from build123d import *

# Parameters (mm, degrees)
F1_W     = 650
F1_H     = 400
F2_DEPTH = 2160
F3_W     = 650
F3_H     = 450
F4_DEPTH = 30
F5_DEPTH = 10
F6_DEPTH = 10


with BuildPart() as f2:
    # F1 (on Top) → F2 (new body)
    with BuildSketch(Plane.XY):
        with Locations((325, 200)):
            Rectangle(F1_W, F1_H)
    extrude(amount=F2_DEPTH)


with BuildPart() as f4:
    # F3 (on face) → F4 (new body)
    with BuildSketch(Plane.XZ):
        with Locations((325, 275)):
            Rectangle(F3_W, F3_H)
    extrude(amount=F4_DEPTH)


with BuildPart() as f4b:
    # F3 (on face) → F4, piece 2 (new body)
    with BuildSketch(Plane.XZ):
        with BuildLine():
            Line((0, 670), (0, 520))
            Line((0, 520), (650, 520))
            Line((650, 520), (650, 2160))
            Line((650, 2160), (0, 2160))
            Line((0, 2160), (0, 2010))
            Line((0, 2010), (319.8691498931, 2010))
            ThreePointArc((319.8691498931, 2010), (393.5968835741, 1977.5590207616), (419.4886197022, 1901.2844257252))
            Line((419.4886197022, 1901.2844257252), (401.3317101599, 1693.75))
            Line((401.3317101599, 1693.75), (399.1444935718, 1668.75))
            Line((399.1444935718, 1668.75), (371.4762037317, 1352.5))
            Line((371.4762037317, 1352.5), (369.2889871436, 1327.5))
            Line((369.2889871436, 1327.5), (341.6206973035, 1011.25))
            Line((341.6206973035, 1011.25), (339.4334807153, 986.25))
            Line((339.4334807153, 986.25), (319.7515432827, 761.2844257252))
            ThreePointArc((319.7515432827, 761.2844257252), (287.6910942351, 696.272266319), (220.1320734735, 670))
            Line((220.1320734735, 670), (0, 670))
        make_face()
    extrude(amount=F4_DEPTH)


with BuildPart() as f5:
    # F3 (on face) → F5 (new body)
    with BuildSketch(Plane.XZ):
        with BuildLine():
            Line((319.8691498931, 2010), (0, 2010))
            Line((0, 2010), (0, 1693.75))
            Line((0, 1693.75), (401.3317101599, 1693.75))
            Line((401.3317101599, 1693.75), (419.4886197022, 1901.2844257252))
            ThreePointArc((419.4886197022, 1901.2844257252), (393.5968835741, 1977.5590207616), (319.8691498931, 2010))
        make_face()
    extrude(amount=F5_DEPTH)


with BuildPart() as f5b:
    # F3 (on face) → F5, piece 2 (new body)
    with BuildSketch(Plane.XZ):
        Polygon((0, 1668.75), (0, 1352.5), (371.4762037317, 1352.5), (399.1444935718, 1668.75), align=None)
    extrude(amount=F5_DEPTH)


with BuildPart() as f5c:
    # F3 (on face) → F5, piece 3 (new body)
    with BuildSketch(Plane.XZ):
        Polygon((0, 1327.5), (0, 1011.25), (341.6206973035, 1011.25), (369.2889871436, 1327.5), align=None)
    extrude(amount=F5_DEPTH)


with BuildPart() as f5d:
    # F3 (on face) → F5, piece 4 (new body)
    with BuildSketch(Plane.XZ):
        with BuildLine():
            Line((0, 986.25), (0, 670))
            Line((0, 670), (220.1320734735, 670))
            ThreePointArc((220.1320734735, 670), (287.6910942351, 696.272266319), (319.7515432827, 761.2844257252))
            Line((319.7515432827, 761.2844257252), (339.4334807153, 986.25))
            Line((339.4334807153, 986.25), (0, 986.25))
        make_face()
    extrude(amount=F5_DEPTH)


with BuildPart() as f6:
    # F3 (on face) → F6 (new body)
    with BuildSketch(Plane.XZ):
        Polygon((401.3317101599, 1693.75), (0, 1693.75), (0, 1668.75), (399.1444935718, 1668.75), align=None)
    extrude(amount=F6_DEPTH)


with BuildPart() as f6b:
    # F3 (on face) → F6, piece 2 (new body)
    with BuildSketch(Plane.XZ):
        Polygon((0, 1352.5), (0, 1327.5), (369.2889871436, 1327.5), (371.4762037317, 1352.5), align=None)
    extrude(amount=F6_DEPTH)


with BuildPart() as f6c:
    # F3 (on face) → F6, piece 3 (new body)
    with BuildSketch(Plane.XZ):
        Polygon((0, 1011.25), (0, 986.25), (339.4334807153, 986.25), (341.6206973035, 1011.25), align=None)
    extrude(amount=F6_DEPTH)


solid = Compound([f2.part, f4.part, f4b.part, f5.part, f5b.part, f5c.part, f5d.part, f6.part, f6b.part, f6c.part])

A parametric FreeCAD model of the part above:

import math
import FreeCAD as App
import Part
import Sketcher

V = App.Vector
Q = App.Units.Quantity


def add_polygon(sketch, points):
    """Adds a closed chain of lines whose ends are joined by coincident constraints."""
    first, n = sketch.GeometryCount, len(points)
    for a, b in zip(points, points[1:] + points[:1]):
        sketch.addGeometry(Part.LineSegment(App.Vector(*a, 0), App.Vector(*b, 0)), False)
    for i in range(n):
        sketch.addConstraint(Sketcher.Constraint("Coincident", first + i, 2, first + (i + 1) % n, 1))

doc = App.newDocument("Part")
body = doc.addObject("PartDesign::Body", "Body")

# Sketch on XY plane
sketch1 = body.newObject("Sketcher::SketchObject", "Sketch")
sketch1.AttachmentSupport = (doc.getObject("XY_Plane"), [""])
sketch1.MapMode = "FlatFace"
add_polygon(sketch1, [(0, 400), (0, 0), (650, 0), (650, 400)])  # lines 0-3
sketch1.addConstraint(Sketcher.Constraint("Vertical", 0))
sketch1.addConstraint(Sketcher.Constraint("Horizontal", 1))
sketch1.addConstraint(Sketcher.Constraint("Vertical", 2))
sketch1.addConstraint(Sketcher.Constraint("Horizontal", 3))
sketch1.addConstraint(Sketcher.Constraint("Coincident", 0, 2, -1, 1))
sketch1.addConstraint(Sketcher.Constraint("DistanceX", 1, 1, 1, 2, Q("650 mm")))
sketch1.addConstraint(Sketcher.Constraint("DistanceY", 0, 2, 0, 1, Q("400 mm")))
pad1 = body.newObject("PartDesign::Pad", "Pad")
pad1.Profile = sketch1
pad1.Length = 2160
body2 = doc.addObject("PartDesign::Body", "Body001")

# Sketch on XZ plane
sketch2 = body2.newObject("Sketcher::SketchObject", "Sketch001")
sketch2.AttachmentSupport = (doc.getObject("XZ_Plane001"), [""])
sketch2.MapMode = "FlatFace"
add_polygon(sketch2, [(0, 500), (0, 50), (650, 50), (650, 500)])  # lines 0-3
sketch2.addConstraint(Sketcher.Constraint("Vertical", 0))
sketch2.addConstraint(Sketcher.Constraint("Horizontal", 1))
sketch2.addConstraint(Sketcher.Constraint("Vertical", 2))
sketch2.addConstraint(Sketcher.Constraint("Horizontal", 3))
sketch2.addConstraint(Sketcher.Constraint("PointOnObject", 0, 2, -2))
sketch2.addConstraint(Sketcher.Constraint("DistanceX", 1, 1, 1, 2, Q("650 mm")))
sketch2.addConstraint(Sketcher.Constraint("DistanceY", 0, 2, 0, 1, Q("450 mm")))
sketch2.addConstraint(Sketcher.Constraint("DistanceY", -1, 1, 0, 2, Q("50 mm")))
pad2 = body2.newObject("PartDesign::Pad", "Pad001")
pad2.Profile = sketch2
pad2.Length = 30
body3 = doc.addObject("PartDesign::Body", "Body002")

# Sketch on XZ plane
sketch3 = body3.newObject("Sketcher::SketchObject", "Sketch002")
sketch3.AttachmentSupport = (doc.getObject("XZ_Plane002"), [""])
sketch3.MapMode = "FlatFace"
sketch3.addGeometry(Part.LineSegment(V(0, 670, 0), V(0, 520, 0)), False)
sketch3.addGeometry(Part.LineSegment(V(0, 520, 0), V(650, 520, 0)), False)
sketch3.addGeometry(Part.LineSegment(V(650, 520, 0), V(650, 2160, 0)), False)
sketch3.addGeometry(Part.LineSegment(V(650, 2160, 0), V(0, 2160, 0)), False)
sketch3.addGeometry(Part.LineSegment(V(0, 2160, 0), V(0, 2010, 0)), False)
sketch3.addGeometry(Part.LineSegment(V(0, 2010, 0), V(320, 2010, 0)), False)
sketch3.addGeometry(Part.ArcOfCircle(Part.Circle(V(320, 1910, 0), V(0, 0, 1), 100), math.radians(-5), math.radians(90)), False)
sketch3.addGeometry(Part.LineSegment(V(419, 1901, 0), V(401, 1694, 0)), False)
sketch3.addGeometry(Part.LineSegment(V(401, 1694, 0), V(399, 1669, 0)), False)
sketch3.addGeometry(Part.LineSegment(V(399, 1669, 0), V(371, 1352, 0)), False)
sketch3.addGeometry(Part.LineSegment(V(371, 1352, 0), V(369, 1328, 0)), False)
sketch3.addGeometry(Part.LineSegment(V(369, 1328, 0), V(342, 1011, 0)), False)
sketch3.addGeometry(Part.LineSegment(V(342, 1011, 0), V(339, 986, 0)), False)
sketch3.addGeometry(Part.LineSegment(V(339, 986, 0), V(320, 761, 0)), False)
sketch3.addGeometry(Part.ArcOfCircle(Part.Circle(V(220, 770, 0), V(0, 0, 1), 100), math.radians(-90), math.radians(-5)), False)
sketch3.addGeometry(Part.LineSegment(V(220, 670, 0), V(0, 670, 0)), False)
sketch3.addConstraint(Sketcher.Constraint("Coincident", 0, 2, 1, 1))
sketch3.addConstraint(Sketcher.Constraint("Coincident", 1, 2, 2, 1))
sketch3.addConstraint(Sketcher.Constraint("Coincident", 2, 2, 3, 1))
sketch3.addConstraint(Sketcher.Constraint("Coincident", 3, 2, 4, 1))
sketch3.addConstraint(Sketcher.Constraint("Coincident", 4, 2, 5, 1))
sketch3.addConstraint(Sketcher.Constraint("Tangent", 5, 2, 6, 2))
sketch3.addConstraint(Sketcher.Constraint("Tangent", 6, 1, 7, 1))
sketch3.addConstraint(Sketcher.Constraint("Coincident", 7, 2, 8, 1))
sketch3.addConstraint(Sketcher.Constraint("Coincident", 8, 2, 9, 1))
sketch3.addConstraint(Sketcher.Constraint("Coincident", 9, 2, 10, 1))
sketch3.addConstraint(Sketcher.Constraint("Coincident", 10, 2, 11, 1))
sketch3.addConstraint(Sketcher.Constraint("Coincident", 11, 2, 12, 1))
sketch3.addConstraint(Sketcher.Constraint("Coincident", 12, 2, 13, 1))
sketch3.addConstraint(Sketcher.Constraint("Tangent", 13, 2, 14, 2))
sketch3.addConstraint(Sketcher.Constraint("Tangent", 14, 1, 15, 1))
sketch3.addConstraint(Sketcher.Constraint("Coincident", 15, 2, 0, 1))
sketch3.addConstraint(Sketcher.Constraint("Vertical", 0))
sketch3.addConstraint(Sketcher.Constraint("Horizontal", 1))
sketch3.addConstraint(Sketcher.Constraint("Vertical", 2))
sketch3.addConstraint(Sketcher.Constraint("Horizontal", 3))
sketch3.addConstraint(Sketcher.Constraint("Vertical", 4))
sketch3.addConstraint(Sketcher.Constraint("Horizontal", 5))
sketch3.addConstraint(Sketcher.Constraint("Horizontal", 15))
sketch3.addConstraint(Sketcher.Constraint("Equal", 6, 14))
sketch3.addConstraint(Sketcher.Constraint("PointOnObject", 0, 2, -2))
sketch3.addConstraint(Sketcher.Constraint("PointOnObject", 3, 2, -2))
sketch3.addConstraint(Sketcher.Constraint("Parallel", 7, 8))
sketch3.addConstraint(Sketcher.Constraint("Parallel", 8, 9))
sketch3.addConstraint(Sketcher.Constraint("Parallel", 9, 10))
sketch3.addConstraint(Sketcher.Constraint("Parallel", 10, 11))
sketch3.addConstraint(Sketcher.Constraint("Parallel", 11, 12))
sketch3.addConstraint(Sketcher.Constraint("Parallel", 12, 13))
sketch3.addConstraint(Sketcher.Constraint("Equal", 0, 4))
sketch3.addConstraint(Sketcher.Constraint("Equal", 8, 10))
sketch3.addConstraint(Sketcher.Constraint("Equal", 9, 11))
sketch3.addConstraint(Sketcher.Constraint("Equal", 10, 12))
sketch3.addConstraint(Sketcher.Constraint("Radius", 6, Q("100 mm")))
sketch3.addConstraint(Sketcher.Constraint("DistanceX", 1, 1, 1, 2, Q("650 mm")))
sketch3.addConstraint(Sketcher.Constraint("DistanceY", 0, 2, 0, 1, Q("150 mm")))
sketch3.addConstraint(Sketcher.Constraint("DistanceY", 2, 1, 2, 2, Q("1640 mm")))
sketch3.addConstraint(Sketcher.Constraint("Angle", 7, Q("-95 deg")))
sketch3.addConstraint(Sketcher.Constraint("DistanceY", -1, 1, 6, 3, Q("1910 mm")))
sketch3.addConstraint(Sketcher.Constraint("DistanceY", 8, 2, 7, 2, Q("25 mm")))
sketch3.addConstraint(Sketcher.Constraint("DistanceY", -1, 1, 9, 2, Q("1352.5 mm")))
sketch3.addConstraint(Sketcher.Constraint("DistanceY", -1, 1, 7, 2, Q("1693.75 mm")))
sketch3.addConstraint(Sketcher.Constraint("DistanceX", 5, 1, 5, 2, Q("319.86915 mm")))
pad3 = body3.newObject("PartDesign::Pad", "Pad002")
pad3.Profile = sketch3
pad3.Length = 30
body4 = doc.addObject("PartDesign::Body", "Body003")

# Sketch on XZ plane
sketch4 = body4.newObject("Sketcher::SketchObject", "Sketch003")
sketch4.AttachmentSupport = (doc.getObject("XZ_Plane003"), [""])
sketch4.MapMode = "FlatFace"
sketch4.addGeometry(Part.LineSegment(V(320, 2010, 0), V(0, 2010, 0)), False)
sketch4.addGeometry(Part.LineSegment(V(0, 2010, 0), V(0, 1694, 0)), False)
sketch4.addGeometry(Part.LineSegment(V(0, 1694, 0), V(401, 1694, 0)), False)
sketch4.addGeometry(Part.LineSegment(V(401, 1694, 0), V(419, 1901, 0)), False)
sketch4.addGeometry(Part.ArcOfCircle(Part.Circle(V(320, 1910, 0), V(0, 0, 1), 100), math.radians(-5), math.radians(90)), False)
sketch4.addConstraint(Sketcher.Constraint("Coincident", 0, 2, 1, 1))
sketch4.addConstraint(Sketcher.Constraint("Coincident", 1, 2, 2, 1))
sketch4.addConstraint(Sketcher.Constraint("Coincident", 2, 2, 3, 1))
sketch4.addConstraint(Sketcher.Constraint("Tangent", 3, 2, 4, 1))
sketch4.addConstraint(Sketcher.Constraint("Tangent", 4, 2, 0, 1))
sketch4.addConstraint(Sketcher.Constraint("Horizontal", 0))
sketch4.addConstraint(Sketcher.Constraint("Vertical", 1))
sketch4.addConstraint(Sketcher.Constraint("Horizontal", 2))
sketch4.addConstraint(Sketcher.Constraint("PointOnObject", 0, 2, -2))
sketch4.addConstraint(Sketcher.Constraint("Radius", 4, Q("100 mm")))
sketch4.addConstraint(Sketcher.Constraint("Angle", 3, Q("85 deg")))
sketch4.addConstraint(Sketcher.Constraint("DistanceY", -1, 1, 4, 3, Q("1910 mm")))
sketch4.addConstraint(Sketcher.Constraint("DistanceY", 1, 2, 1, 1, Q("316.25 mm")))
sketch4.addConstraint(Sketcher.Constraint("DistanceX", 0, 2, 0, 1, Q("319.86915 mm")))
pad4 = body4.newObject("PartDesign::Pad", "Pad003")
pad4.Profile = sketch4
pad4.Length = 10
body5 = doc.addObject("PartDesign::Body", "Body004")

# Sketch on XZ plane
sketch5 = body5.newObject("Sketcher::SketchObject", "Sketch004")
sketch5.AttachmentSupport = (doc.getObject("XZ_Plane004"), [""])
sketch5.MapMode = "FlatFace"
add_polygon(sketch5, [(0, 1669), (0, 1352), (371, 1352), (399, 1669)])  # lines 0-3
sketch5.addConstraint(Sketcher.Constraint("Vertical", 0))
sketch5.addConstraint(Sketcher.Constraint("Horizontal", 1))
sketch5.addConstraint(Sketcher.Constraint("Horizontal", 3))
sketch5.addConstraint(Sketcher.Constraint("PointOnObject", 0, 2, -2))
sketch5.addConstraint(Sketcher.Constraint("Angle", 2, Q("85 deg")))
sketch5.addConstraint(Sketcher.Constraint("DistanceY", 0, 2, 0, 1, Q("316.25 mm")))
sketch5.addConstraint(Sketcher.Constraint("DistanceY", -1, 1, 0, 2, Q("1352.5 mm")))
sketch5.addConstraint(Sketcher.Constraint("DistanceX", 1, 1, 1, 2, Q("371.476204 mm")))
pad5 = body5.newObject("PartDesign::Pad", "Pad004")
pad5.Profile = sketch5
pad5.Length = 10
body6 = doc.addObject("PartDesign::Body", "Body005")

# Sketch on XZ plane
sketch6 = body6.newObject("Sketcher::SketchObject", "Sketch005")
sketch6.AttachmentSupport = (doc.getObject("XZ_Plane005"), [""])
sketch6.MapMode = "FlatFace"
add_polygon(sketch6, [(0, 1328), (0, 1011), (342, 1011), (369, 1328)])  # lines 0-3
sketch6.addConstraint(Sketcher.Constraint("Vertical", 0))
sketch6.addConstraint(Sketcher.Constraint("Horizontal", 1))
sketch6.addConstraint(Sketcher.Constraint("Horizontal", 3))
sketch6.addConstraint(Sketcher.Constraint("PointOnObject", 0, 2, -2))
sketch6.addConstraint(Sketcher.Constraint("Angle", 2, Q("85 deg")))
sketch6.addConstraint(Sketcher.Constraint("DistanceY", 0, 2, 0, 1, Q("316.25 mm")))
sketch6.addConstraint(Sketcher.Constraint("DistanceY", -1, 1, 2, 2, Q("1327.5 mm")))
sketch6.addConstraint(Sketcher.Constraint("DistanceX", 1, 1, 1, 2, Q("341.620697 mm")))
pad6 = body6.newObject("PartDesign::Pad", "Pad005")
pad6.Profile = sketch6
pad6.Length = 10
body7 = doc.addObject("PartDesign::Body", "Body006")

# Sketch on XZ plane
sketch7 = body7.newObject("Sketcher::SketchObject", "Sketch006")
sketch7.AttachmentSupport = (doc.getObject("XZ_Plane006"), [""])
sketch7.MapMode = "FlatFace"
sketch7.addGeometry(Part.LineSegment(V(0, 986, 0), V(0, 670, 0)), False)
sketch7.addGeometry(Part.LineSegment(V(0, 670, 0), V(220, 670, 0)), False)
sketch7.addGeometry(Part.ArcOfCircle(Part.Circle(V(220, 770, 0), V(0, 0, 1), 100), math.radians(-90), math.radians(-5)), False)
sketch7.addGeometry(Part.LineSegment(V(320, 761, 0), V(339, 986, 0)), False)
sketch7.addGeometry(Part.LineSegment(V(339, 986, 0), V(0, 986, 0)), False)
sketch7.addConstraint(Sketcher.Constraint("Coincident", 0, 2, 1, 1))
sketch7.addConstraint(Sketcher.Constraint("Tangent", 1, 2, 2, 1))
sketch7.addConstraint(Sketcher.Constraint("Tangent", 2, 2, 3, 1))
sketch7.addConstraint(Sketcher.Constraint("Coincident", 3, 2, 4, 1))
sketch7.addConstraint(Sketcher.Constraint("Coincident", 4, 2, 0, 1))
sketch7.addConstraint(Sketcher.Constraint("Vertical", 0))
sketch7.addConstraint(Sketcher.Constraint("Horizontal", 1))
sketch7.addConstraint(Sketcher.Constraint("Horizontal", 4))
sketch7.addConstraint(Sketcher.Constraint("PointOnObject", 0, 2, -2))
sketch7.addConstraint(Sketcher.Constraint("Radius", 2, Q("100 mm")))
sketch7.addConstraint(Sketcher.Constraint("Angle", 3, Q("85 deg")))
sketch7.addConstraint(Sketcher.Constraint("DistanceY", -1, 1, 2, 3, Q("770 mm")))
sketch7.addConstraint(Sketcher.Constraint("DistanceY", 0, 2, 0, 1, Q("316.25 mm")))
sketch7.addConstraint(Sketcher.Constraint("DistanceX", 4, 2, 4, 1, Q("339.433481 mm")))
pad7 = body7.newObject("PartDesign::Pad", "Pad006")
pad7.Profile = sketch7
pad7.Length = 10
body8 = doc.addObject("PartDesign::Body", "Body007")

# Sketch on XZ plane
sketch8 = body8.newObject("Sketcher::SketchObject", "Sketch007")
sketch8.AttachmentSupport = (doc.getObject("XZ_Plane007"), [""])
sketch8.MapMode = "FlatFace"
add_polygon(sketch8, [(401, 1694), (0, 1694), (0, 1669), (399, 1669)])  # lines 0-3
sketch8.addConstraint(Sketcher.Constraint("Horizontal", 0))
sketch8.addConstraint(Sketcher.Constraint("Vertical", 1))
sketch8.addConstraint(Sketcher.Constraint("Horizontal", 2))
sketch8.addConstraint(Sketcher.Constraint("PointOnObject", 0, 2, -2))
sketch8.addConstraint(Sketcher.Constraint("DistanceY", 1, 2, 1, 1, Q("25 mm")))
sketch8.addConstraint(Sketcher.Constraint("Angle", 3, Q("85 deg")))
sketch8.addConstraint(Sketcher.Constraint("DistanceY", -1, 1, 0, 2, Q("1693.75 mm")))
sketch8.addConstraint(Sketcher.Constraint("DistanceX", 0, 2, 0, 1, Q("401.33171 mm")))
pad8 = body8.newObject("PartDesign::Pad", "Pad007")
pad8.Profile = sketch8
pad8.Length = 10
body9 = doc.addObject("PartDesign::Body", "Body008")

# Sketch on XZ plane
sketch9 = body9.newObject("Sketcher::SketchObject", "Sketch008")
sketch9.AttachmentSupport = (doc.getObject("XZ_Plane008"), [""])
sketch9.MapMode = "FlatFace"
add_polygon(sketch9, [(0, 1352), (0, 1328), (369, 1328), (371, 1352)])  # lines 0-3
sketch9.addConstraint(Sketcher.Constraint("Vertical", 0))
sketch9.addConstraint(Sketcher.Constraint("Horizontal", 1))
sketch9.addConstraint(Sketcher.Constraint("Horizontal", 3))
sketch9.addConstraint(Sketcher.Constraint("PointOnObject", 0, 2, -2))
sketch9.addConstraint(Sketcher.Constraint("DistanceY", 0, 2, 0, 1, Q("25 mm")))
sketch9.addConstraint(Sketcher.Constraint("Angle", 2, Q("85 deg")))
sketch9.addConstraint(Sketcher.Constraint("DistanceY", -1, 1, 0, 2, Q("1327.5 mm")))
sketch9.addConstraint(Sketcher.Constraint("DistanceX", 1, 1, 1, 2, Q("369.288987 mm")))
pad9 = body9.newObject("PartDesign::Pad", "Pad008")
pad9.Profile = sketch9
pad9.Length = 10
body10 = doc.addObject("PartDesign::Body", "Body009")

# Sketch on XZ plane
sketch10 = body10.newObject("Sketcher::SketchObject", "Sketch009")
sketch10.AttachmentSupport = (doc.getObject("XZ_Plane009"), [""])
sketch10.MapMode = "FlatFace"
add_polygon(sketch10, [(0, 1011), (0, 986), (339, 986), (342, 1011)])  # lines 0-3
sketch10.addConstraint(Sketcher.Constraint("Vertical", 0))
sketch10.addConstraint(Sketcher.Constraint("Horizontal", 1))
sketch10.addConstraint(Sketcher.Constraint("Horizontal", 3))
sketch10.addConstraint(Sketcher.Constraint("PointOnObject", 0, 2, -2))
sketch10.addConstraint(Sketcher.Constraint("DistanceY", 0, 2, 0, 1, Q("25 mm")))
sketch10.addConstraint(Sketcher.Constraint("Angle", 2, Q("85 deg")))
sketch10.addConstraint(Sketcher.Constraint("DistanceY", -1, 1, 0, 2, Q("986.25 mm")))
sketch10.addConstraint(Sketcher.Constraint("DistanceX", 1, 1, 1, 2, Q("339.433481 mm")))
pad10 = body10.newObject("PartDesign::Pad", "Pad009")
pad10.Profile = sketch10
pad10.Length = 10

doc.recompute()
